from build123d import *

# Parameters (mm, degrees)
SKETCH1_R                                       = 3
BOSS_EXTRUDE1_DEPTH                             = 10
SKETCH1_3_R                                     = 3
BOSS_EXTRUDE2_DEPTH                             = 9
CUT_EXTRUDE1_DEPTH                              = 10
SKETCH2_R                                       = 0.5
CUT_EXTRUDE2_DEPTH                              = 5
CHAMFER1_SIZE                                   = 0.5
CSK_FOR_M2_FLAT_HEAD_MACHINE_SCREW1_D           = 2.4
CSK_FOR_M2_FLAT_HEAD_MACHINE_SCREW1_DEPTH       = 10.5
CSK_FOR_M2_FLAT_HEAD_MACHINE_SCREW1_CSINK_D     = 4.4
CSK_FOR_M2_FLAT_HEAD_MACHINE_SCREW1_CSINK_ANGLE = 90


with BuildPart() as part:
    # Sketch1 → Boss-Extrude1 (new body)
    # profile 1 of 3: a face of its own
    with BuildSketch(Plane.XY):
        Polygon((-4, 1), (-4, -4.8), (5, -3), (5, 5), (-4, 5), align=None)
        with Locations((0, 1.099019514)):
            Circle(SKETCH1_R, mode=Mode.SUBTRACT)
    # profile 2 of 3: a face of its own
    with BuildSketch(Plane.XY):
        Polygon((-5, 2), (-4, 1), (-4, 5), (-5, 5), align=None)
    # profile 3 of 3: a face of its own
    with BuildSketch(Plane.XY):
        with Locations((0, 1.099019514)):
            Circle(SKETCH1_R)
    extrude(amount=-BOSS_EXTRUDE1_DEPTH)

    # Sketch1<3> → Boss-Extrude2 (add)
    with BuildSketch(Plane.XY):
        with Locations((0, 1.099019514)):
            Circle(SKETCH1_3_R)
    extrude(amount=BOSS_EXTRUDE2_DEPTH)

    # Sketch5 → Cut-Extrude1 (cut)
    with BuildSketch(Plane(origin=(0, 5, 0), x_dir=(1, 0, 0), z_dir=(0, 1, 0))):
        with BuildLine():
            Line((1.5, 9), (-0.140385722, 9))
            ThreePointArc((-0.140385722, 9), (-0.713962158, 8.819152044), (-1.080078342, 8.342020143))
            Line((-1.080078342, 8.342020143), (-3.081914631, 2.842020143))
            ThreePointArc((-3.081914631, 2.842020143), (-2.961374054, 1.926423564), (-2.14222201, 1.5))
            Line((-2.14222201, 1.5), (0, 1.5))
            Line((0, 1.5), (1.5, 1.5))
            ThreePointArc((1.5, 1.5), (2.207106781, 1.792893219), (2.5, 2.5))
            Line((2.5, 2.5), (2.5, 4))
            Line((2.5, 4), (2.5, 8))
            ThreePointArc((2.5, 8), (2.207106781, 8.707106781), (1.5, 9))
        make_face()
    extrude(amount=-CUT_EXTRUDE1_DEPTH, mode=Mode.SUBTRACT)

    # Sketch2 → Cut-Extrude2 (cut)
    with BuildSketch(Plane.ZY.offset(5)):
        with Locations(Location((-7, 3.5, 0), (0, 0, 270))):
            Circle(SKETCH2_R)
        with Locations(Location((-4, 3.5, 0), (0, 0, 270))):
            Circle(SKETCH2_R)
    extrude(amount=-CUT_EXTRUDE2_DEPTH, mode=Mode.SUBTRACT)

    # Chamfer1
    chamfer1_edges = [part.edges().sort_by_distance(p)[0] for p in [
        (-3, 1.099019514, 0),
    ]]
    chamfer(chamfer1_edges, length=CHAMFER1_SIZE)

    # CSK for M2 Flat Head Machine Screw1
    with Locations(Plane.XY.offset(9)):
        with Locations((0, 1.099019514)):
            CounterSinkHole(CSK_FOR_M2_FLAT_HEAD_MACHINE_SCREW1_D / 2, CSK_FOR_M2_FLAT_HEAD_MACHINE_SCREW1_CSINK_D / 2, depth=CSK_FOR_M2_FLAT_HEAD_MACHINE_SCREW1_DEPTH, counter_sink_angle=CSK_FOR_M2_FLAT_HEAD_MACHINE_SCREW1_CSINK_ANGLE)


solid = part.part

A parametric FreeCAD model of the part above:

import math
import FreeCAD as App
import Part
import Sketcher
from FreeCAD import Vector
Q = App.Units.Quantity


def edges_at(feature, points):
    """Names of the edges that pass closest to the given points."""
    edges = feature.Shape.Edges
    near = lambda p: min(range(len(edges)), key=lambda i: edges[i].distToShape(Part.Vertex(*p))[0])
    return sorted({f"Edge{near(p) + 1}" for p in points})


def add_polygon(sketch, points):
    """Adds a closed chain of lines whose ends are joined by coincident constraints."""
    first, n = sketch.GeometryCount, len(points)
    for a, b in zip(points, points[1:] + points[:1]):
        sketch.addGeometry(Part.LineSegment(App.Vector(*a, 0), App.Vector(*b, 0)), False)
    for i in range(n):
        sketch.addConstraint(Sketcher.Constraint("Coincident", first + i, 2, first + (i + 1) % n, 1))

doc = App.newDocument("Part")
body = doc.addObject("PartDesign::Body", "Body")

sketch1 = body.newObject("Sketcher::SketchObject", "Sketch")
sketch1.AttachmentSupport = (doc.getObject("XY_Plane"), [""])
sketch1.MapMode = "FlatFace"
add_polygon(sketch1, [(-4, -4.8), (5, -3), (5, 5), (-5, 5), (-5, 2), (-4, 1)])
sketch1.addConstraint([
    Sketcher.Constraint("Vertical", 1),
    Sketcher.Constraint("Horizontal", 2),
    Sketcher.Constraint("Vertical", 3),
    Sketcher.Constraint("Vertical", 5),
    Sketcher.Constraint("DistanceX", 2, 2, 2, 1, 10.0),
    Sketcher.Constraint("DistanceY", 1, 1, 1, 2, 8.0),
    Sketcher.Constraint("DistanceY", 3, 2, 3, 1, 3.0),
    Sketcher.Constraint("Angle", 4, Q("-45 deg")),
    Sketcher.Constraint("DistanceY", 5, 2, 5, 1, 5.8),
    Sketcher.Constraint("DistanceX", -1, 1, 0, 2, 5.0),
    Sketcher.Constraint("DistanceY", 0, 2, -1, 1, 3.0),
    Sketcher.Constraint("DistanceX", 4, 2, -1, 1, 4.0),
])
pad1 = body.newObject("PartDesign::Pad", "Pad")
pad1.Profile = sketch1
pad1.Length = 10
pad1.Reversed = True

sketch2 = body.newObject("Sketcher::SketchObject", "Sketch001")
sketch2.AttachmentSupport = (doc.getObject("XY_Plane"), [""])
sketch2.MapMode = "FlatFace"
sketch2.addGeometry(Part.Circle(Vector(0, 1.1, 0), Vector(0, 0, 1), 3), False)
sketch2.addConstraint([
    Sketcher.Constraint("PointOnObject", 0, 3, -2),
    Sketcher.Constraint("Diameter", 0, 6.0),
    Sketcher.Constraint("DistanceY", -1, 1, 0, 3, 1.09902),
])
pad2 = body.newObject("PartDesign::Pad", "Pad001")
pad2.Profile = sketch2
pad2.Length = 9

sketch3 = body.newObject("Sketcher::SketchObject", "Sketch002")
sketch3.AttachmentSupport = (doc.getObject("XZ_Plane"), [""])
sketch3.MapMode = "FlatFace"
sketch3.AttachmentOffset = App.Placement(Vector(0, 0, -5), App.Rotation())
sketch3.addGeometry([
    Part.LineSegment(Vector(1.5, -9, 0), Vector(-0.1, -9, 0)),
    Part.ArcOfCircle(Part.Circle(Vector(-0.1, -8, 0), Vector(0, 0, 1), 1), math.radians(-160), math.radians(-90)),
    Part.LineSegment(Vector(-1.1, -8.3, 0), Vector(-3.1, -2.8, 0)),
    Part.ArcOfCircle(Part.Circle(Vector(-2.1, -2.5, 0), Vector(0, 0, 1), 1), math.radians(90), math.radians(200)),
    Part.LineSegment(Vector(-2.1, -1.5, 0), Vector(1.5, -1.5, 0)),
    Part.ArcOfCircle(Part.Circle(Vector(1.5, -2.5, 0), Vector(0, 0, 1), 1), math.radians(0), math.radians(90)),
    Part.LineSegment(Vector(2.5, -2.5, 0), Vector(2.5, -8, 0)),
    Part.ArcOfCircle(Part.Circle(Vector(1.5, -8, 0), Vector(0, 0, 1), 1), math.radians(-90), math.radians(0)),
], False)
sketch3.addConstraint([
    Sketcher.Constraint("Tangent", 0, 2, 1, 2),
    Sketcher.Constraint("Tangent", 1, 1, 2, 1),
    Sketcher.Constraint("Tangent", 2, 2, 3, 2),
    Sketcher.Constraint("Tangent", 3, 1, 4, 1),
    Sketcher.Constraint("Tangent", 4, 2, 5, 2),
    Sketcher.Constraint("Tangent", 5, 1, 6, 1),
    Sketcher.Constraint("Tangent", 6, 2, 7, 2),
    Sketcher.Constraint("Tangent", 7, 1, 0, 1),
    Sketcher.Constraint("Horizontal", 0),
    Sketcher.Constraint("Horizontal", 4),
    Sketcher.Constraint("Vertical", 6),
    Sketcher.Constraint("Equal", 1, 3),
    Sketcher.Constraint("Equal", 3, 5),
    Sketcher.Constraint("Equal", 5, 7),
    Sketcher.Constraint("Radius", 1, 1.0),
    Sketcher.Constraint("Angle", 2, Q("110 deg")),
    Sketcher.Constraint("DistanceY", 6, 2, 6, 1, 5.5),
    Sketcher.Constraint("DistanceY", 1, 3, -1, 1, 8.0),
    Sketcher.Constraint("DistanceX", -1, 1, 5, 3, 1.5),
    Sketcher.Constraint("DistanceX", 0, 2, 0, 1, 1.640386),
])
pocket1 = body.newObject("PartDesign::Pocket", "Pocket")
pocket1.Profile = sketch3
pocket1.Length = 10
pocket1.Reversed = True

sketch4 = body.newObject("Sketcher::SketchObject", "Sketch003")
sketch4.AttachmentSupport = (doc.getObject("YZ_Plane"), [""])
sketch4.MapMode = "FlatFace"
sketch4.AttachmentOffset = App.Placement(Vector(0, 0, -5), App.Rotation())
sketch4.addGeometry([
    Part.Circle(Vector(3.5, -7, 0), Vector(0, 0, 1), 0.5),
    Part.Circle(Vector(3.5, -4, 0), Vector(0, 0, 1), 0.5),
], False)
sketch4.addConstraint([
    Sketcher.Constraint("Equal", 0, 1),
    Sketcher.Constraint("Vertical", 0, 3, 1, 3),
    Sketcher.Constraint("Diameter", 0, 1.0),
    Sketcher.Constraint("DistanceY", 0, 3, -1, 1, 7.0),
    Sketcher.Constraint("DistanceY", 1, 3, -1, 1, 4.0),
    Sketcher.Constraint("DistanceX", -1, 1, 0, 3, 3.5),
])
pocket2 = body.newObject("PartDesign::Pocket", "Pocket001")
pocket2.Profile = sketch4
pocket2.Length = 5
pocket2.Reversed = True
doc.recompute()

chamfer = body.newObject("PartDesign::Chamfer", "Chamfer")
chamfer.Base = (pocket2, edges_at(pocket2, [(-3, 1.099, 0)]))
chamfer.Size = 0.5

sketch5 = body.newObject("Sketcher::SketchObject", "Sketch004")
sketch5.AttachmentSupport = (doc.getObject("XY_Plane"), [""])
sketch5.MapMode = "FlatFace"
sketch5.AttachmentOffset = App.Placement(Vector(0, 0, 9), App.Rotation())
sketch5.addGeometry(Part.Circle(Vector(0, 1.1, 0), Vector(0, 0, 1), 1.2), False)
sketch5.addConstraint([
    Sketcher.Constraint("PointOnObject", 0, 3, -2),
    Sketcher.Constraint("Diameter", 0, 2.4),
    Sketcher.Constraint("DistanceY", -1, 1, 0, 3, 1.09902),
])
doc.recompute()
hole = body.newObject("PartDesign::Hole", "Hole")
hole.Profile = sketch5
hole.ThreadType = "None"
hole.Diameter = 2.4
hole.DepthType = "Dimension"
hole.Depth = 10.5
hole.DrillPoint = "Flat"
hole.HoleCutType = "Countersink"
hole.HoleCutDiameter = 4.4
hole.HoleCutCountersinkAngle = 90

doc.recompute()
